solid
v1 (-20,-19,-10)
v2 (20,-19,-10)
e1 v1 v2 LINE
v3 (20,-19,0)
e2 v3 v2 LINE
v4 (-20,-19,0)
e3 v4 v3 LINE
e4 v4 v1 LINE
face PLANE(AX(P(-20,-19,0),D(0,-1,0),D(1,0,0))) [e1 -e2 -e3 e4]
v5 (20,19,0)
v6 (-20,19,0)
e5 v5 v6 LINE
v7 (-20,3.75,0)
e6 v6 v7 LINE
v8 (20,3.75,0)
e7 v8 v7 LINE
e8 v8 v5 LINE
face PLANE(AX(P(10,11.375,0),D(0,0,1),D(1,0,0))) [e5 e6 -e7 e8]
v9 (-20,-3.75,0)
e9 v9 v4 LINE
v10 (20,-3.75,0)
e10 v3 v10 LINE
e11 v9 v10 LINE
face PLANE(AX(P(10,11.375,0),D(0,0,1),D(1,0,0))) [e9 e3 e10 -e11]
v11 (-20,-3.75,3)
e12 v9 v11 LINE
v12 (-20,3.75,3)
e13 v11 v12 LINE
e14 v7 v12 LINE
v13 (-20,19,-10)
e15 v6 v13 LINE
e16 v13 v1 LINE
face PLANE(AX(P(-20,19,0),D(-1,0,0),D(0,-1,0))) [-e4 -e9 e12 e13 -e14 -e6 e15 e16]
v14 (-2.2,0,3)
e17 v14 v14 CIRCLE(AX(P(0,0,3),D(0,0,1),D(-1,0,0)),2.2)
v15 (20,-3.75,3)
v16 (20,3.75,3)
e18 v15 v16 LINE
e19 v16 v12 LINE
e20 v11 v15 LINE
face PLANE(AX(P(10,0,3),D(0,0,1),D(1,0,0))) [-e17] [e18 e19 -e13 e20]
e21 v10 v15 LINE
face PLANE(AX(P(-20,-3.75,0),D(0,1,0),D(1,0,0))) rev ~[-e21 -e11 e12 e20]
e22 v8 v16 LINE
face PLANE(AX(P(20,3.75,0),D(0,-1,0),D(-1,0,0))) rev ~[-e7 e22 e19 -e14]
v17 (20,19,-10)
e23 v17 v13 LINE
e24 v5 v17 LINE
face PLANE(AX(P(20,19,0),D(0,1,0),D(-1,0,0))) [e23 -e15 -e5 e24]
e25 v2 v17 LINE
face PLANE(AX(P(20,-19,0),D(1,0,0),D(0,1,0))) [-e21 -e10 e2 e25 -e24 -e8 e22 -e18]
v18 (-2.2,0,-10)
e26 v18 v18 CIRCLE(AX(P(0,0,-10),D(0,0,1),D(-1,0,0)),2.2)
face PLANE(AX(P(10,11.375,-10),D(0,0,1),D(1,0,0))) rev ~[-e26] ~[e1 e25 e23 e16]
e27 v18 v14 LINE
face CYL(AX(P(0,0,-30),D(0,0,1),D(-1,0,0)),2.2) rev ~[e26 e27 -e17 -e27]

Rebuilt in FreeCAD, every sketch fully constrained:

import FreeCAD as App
import Part
import Sketcher
from FreeCAD import Vector


def add_polygon(sketch, points):
    """Adds a closed chain of lines whose ends are joined by coincident constraints."""
    first, n = sketch.GeometryCount, len(points)
    for a, b in zip(points, points[1:] + points[:1]):
        sketch.addGeometry(Part.LineSegment(App.Vector(*a, 0), App.Vector(*b, 0)), False)
    for i in range(n):
        sketch.addConstraint(Sketcher.Constraint("Coincident", first + i, 2, first + (i + 1) % n, 1))

doc = App.newDocument("Part")
body = doc.addObject("PartDesign::Body", "Body")

# Sketch on XY plane
sketch1 = body.newObject("Sketcher::SketchObject", "Sketch")
sketch1.AttachmentSupport = (doc.getObject("XY_Plane"), [""])
sketch1.MapMode = "FlatFace"
add_polygon(sketch1, [(20, 19), (-20, 19), (-20, -19), (20, -19)])  # lines 0-3
sketch1.addConstraint(Sketcher.Constraint("Horizontal", 0))
sketch1.addConstraint(Sketcher.Constraint("Vertical", 1))
sketch1.addConstraint(Sketcher.Constraint("Horizontal", 2))
sketch1.addConstraint(Sketcher.Constraint("Vertical", 3))
sketch1.addConstraint(Sketcher.Constraint("Symmetric", 0, 2, 2, 2, -1, 1))
sketch1.addConstraint(Sketcher.Constraint("DistanceX", 0, 2, 0, 1, 40.0))
sketch1.addConstraint(Sketcher.Constraint("DistanceY", 1, 2, 1, 1, 38.0))
pad1 = body.newObject("PartDesign::Pad", "Pad")
pad1.Profile = sketch1
pad1.Length = 10
pad1.Reversed = True

# Sketch on XY plane
sketch2 = body.newObject("Sketcher::SketchObject", "Sketch001")
sketch2.AttachmentSupport = (doc.getObject("XY_Plane"), [""])
sketch2.MapMode = "FlatFace"
add_polygon(sketch2, [(20, -4), (20, 4), (-20, 4), (-20, -4)])  # lines 0-3
sketch2.addConstraint(Sketcher.Constraint("Vertical", 0))
sketch2.addConstraint(Sketcher.Constraint("Horizontal", 1))
sketch2.addConstraint(Sketcher.Constraint("Vertical", 2))
sketch2.addConstraint(Sketcher.Constraint("Horizontal", 3))
sketch2.addConstraint(Sketcher.Constraint("Symmetric", 0, 2, 2, 2, -1, 1))
sketch2.addConstraint(Sketcher.Constraint("DistanceX", 1, 2, 1, 1, 40.0))
sketch2.addConstraint(Sketcher.Constraint("DistanceY", 0, 1, 0, 2, 7.5))
pad2 = body.newObject("PartDesign::Pad", "Pad001")
pad2.Profile = sketch2
pad2.Length = 3

# Sketch on XY plane
sketch3 = body.newObject("Sketcher::SketchObject", "Sketch002")
sketch3.AttachmentSupport = (doc.getObject("XY_Plane"), [""])
sketch3.MapMode = "FlatFace"
sketch3.AttachmentOffset = App.Placement(Vector(0, 0, -10), App.Rotation())
sketch3.addGeometry(Part.Circle(Vector(0, 0, 0), Vector(0, 0, 1), 2.2), False)
sketch3.addConstraint(Sketcher.Constraint("Coincident", 0, 3, -1, 1))
sketch3.addConstraint(Sketcher.Constraint("Diameter", 0, 4.4))
doc.recompute()
hole = body.newObject("PartDesign::Hole", "Hole")
hole.Profile = sketch3
hole.ThreadType = "None"
hole.Diameter = 4.4
hole.DepthType = "Dimension"
hole.Depth = 20
hole.DrillPoint = "Angled"
hole.DrillPointAngle = 118
hole.Reversed = True

doc.recompute()
